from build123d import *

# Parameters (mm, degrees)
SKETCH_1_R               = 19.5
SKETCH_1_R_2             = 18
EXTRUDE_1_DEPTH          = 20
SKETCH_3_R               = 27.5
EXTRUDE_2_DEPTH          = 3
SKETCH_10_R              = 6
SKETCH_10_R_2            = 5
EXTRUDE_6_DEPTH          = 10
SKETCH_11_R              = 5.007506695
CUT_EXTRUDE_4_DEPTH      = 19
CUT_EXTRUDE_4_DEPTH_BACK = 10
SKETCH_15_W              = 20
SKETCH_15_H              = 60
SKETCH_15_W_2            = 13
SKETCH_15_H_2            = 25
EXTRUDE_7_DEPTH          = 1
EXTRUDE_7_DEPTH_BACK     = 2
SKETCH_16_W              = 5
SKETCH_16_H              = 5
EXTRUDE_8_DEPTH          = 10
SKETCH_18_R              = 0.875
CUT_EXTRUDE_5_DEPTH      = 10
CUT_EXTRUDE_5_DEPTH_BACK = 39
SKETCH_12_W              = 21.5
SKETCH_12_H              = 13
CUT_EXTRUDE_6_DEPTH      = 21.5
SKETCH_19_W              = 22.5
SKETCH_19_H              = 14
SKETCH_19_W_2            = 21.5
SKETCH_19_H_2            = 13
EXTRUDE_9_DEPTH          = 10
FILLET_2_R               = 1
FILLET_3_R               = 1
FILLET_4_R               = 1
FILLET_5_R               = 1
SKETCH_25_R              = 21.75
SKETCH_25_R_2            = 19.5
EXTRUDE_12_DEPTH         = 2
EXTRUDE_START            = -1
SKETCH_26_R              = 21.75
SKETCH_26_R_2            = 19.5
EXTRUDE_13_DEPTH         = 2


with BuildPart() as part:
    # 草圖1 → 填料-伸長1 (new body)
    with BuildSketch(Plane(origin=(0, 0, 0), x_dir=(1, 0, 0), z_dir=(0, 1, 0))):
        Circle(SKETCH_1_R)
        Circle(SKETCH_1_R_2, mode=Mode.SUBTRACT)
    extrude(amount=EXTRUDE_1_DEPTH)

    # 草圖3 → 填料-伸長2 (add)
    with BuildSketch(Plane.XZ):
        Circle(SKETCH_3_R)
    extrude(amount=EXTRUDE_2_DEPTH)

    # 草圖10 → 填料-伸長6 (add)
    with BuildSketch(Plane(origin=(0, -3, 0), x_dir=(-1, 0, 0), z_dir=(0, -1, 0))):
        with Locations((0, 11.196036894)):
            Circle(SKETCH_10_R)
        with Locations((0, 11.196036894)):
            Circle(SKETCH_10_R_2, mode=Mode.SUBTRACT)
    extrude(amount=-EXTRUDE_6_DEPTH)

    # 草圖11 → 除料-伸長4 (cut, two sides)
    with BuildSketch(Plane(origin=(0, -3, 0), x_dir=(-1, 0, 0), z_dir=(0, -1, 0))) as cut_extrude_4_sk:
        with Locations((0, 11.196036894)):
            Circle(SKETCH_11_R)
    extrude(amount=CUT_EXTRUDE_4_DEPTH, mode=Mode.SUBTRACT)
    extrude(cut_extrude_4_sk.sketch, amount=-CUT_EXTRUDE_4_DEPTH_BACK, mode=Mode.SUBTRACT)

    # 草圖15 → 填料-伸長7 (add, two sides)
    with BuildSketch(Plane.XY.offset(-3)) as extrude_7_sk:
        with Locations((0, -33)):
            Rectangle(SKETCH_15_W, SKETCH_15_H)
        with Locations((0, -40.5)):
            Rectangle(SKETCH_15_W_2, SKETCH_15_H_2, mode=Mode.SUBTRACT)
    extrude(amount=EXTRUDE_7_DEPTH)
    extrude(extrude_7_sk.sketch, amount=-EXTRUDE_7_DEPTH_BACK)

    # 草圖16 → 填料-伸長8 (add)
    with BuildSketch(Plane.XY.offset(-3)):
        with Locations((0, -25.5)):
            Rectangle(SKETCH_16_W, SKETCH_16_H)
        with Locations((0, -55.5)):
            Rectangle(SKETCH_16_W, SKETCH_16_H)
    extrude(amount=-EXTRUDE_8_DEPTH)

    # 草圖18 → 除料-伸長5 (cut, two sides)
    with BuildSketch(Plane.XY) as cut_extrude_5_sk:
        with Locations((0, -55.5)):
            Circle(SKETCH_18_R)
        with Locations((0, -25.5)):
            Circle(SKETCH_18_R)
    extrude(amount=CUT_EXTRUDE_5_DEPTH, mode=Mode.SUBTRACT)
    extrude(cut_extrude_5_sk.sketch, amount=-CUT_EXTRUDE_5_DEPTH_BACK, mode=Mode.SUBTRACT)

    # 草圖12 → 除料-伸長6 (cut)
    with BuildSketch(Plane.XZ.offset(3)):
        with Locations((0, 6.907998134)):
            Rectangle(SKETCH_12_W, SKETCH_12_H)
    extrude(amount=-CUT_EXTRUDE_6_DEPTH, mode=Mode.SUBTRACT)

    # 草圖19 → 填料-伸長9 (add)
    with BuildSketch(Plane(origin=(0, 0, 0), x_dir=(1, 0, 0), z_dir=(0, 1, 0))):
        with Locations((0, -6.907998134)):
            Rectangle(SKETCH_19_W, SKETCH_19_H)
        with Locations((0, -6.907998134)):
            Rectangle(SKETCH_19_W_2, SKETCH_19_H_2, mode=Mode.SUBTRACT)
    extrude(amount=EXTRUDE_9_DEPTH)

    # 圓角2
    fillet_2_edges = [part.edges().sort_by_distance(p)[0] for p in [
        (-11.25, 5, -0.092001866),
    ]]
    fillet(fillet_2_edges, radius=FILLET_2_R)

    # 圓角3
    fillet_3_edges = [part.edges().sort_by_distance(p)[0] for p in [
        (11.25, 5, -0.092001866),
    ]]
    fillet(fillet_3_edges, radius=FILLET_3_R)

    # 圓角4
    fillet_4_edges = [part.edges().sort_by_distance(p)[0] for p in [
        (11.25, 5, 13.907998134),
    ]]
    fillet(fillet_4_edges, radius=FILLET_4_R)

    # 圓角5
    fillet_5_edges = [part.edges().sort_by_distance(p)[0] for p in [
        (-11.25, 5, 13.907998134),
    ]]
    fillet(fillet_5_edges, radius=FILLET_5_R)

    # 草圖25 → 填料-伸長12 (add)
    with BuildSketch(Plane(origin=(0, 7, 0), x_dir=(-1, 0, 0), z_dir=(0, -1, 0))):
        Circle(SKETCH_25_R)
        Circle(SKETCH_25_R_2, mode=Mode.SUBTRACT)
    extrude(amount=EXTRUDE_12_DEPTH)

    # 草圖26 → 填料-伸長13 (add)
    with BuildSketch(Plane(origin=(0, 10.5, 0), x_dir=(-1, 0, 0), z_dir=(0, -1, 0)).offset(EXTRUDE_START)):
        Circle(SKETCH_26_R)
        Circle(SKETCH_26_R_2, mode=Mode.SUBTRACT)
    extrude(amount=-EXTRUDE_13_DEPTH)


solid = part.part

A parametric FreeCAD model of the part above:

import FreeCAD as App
import Part
import Sketcher
Q = App.Units.Quantity


def edges_at(feature, points):
    """Names of the edges that pass closest to the given points."""
    edges = feature.Shape.Edges
    near = lambda p: min(range(len(edges)), key=lambda i: edges[i].distToShape(Part.Vertex(*p))[0])
    return sorted({f"Edge{near(p) + 1}" for p in points})


def add_polygon(sketch, points):
    """Adds a closed chain of lines whose ends are joined by coincident constraints."""
    first, n = sketch.GeometryCount, len(points)
    for a, b in zip(points, points[1:] + points[:1]):
        sketch.addGeometry(Part.LineSegment(App.Vector(*a, 0), App.Vector(*b, 0)), False)
    for i in range(n):
        sketch.addConstraint(Sketcher.Constraint("Coincident", first + i, 2, first + (i + 1) % n, 1))

doc = App.newDocument("Part")
params = doc.addObject("Spreadsheet::Sheet", "Params")
for row, (alias, value) in enumerate([
    ("sketch1_diameter", "39 mm"),
    ("sketch1_diameter2", "36 mm"),
    ("pad1_length", "20 mm"),
    ("sketch2_diameter", "55 mm"),
    ("pad2_length", "3 mm"),
    ("sketch3_diameter", "12 mm"),
    ("sketch3_diameter2", "10 mm"),
    ("pad3_length", "10 mm"),
    ("sketch5_width", "20 mm"),
    ("sketch5_width2", "13 mm"),
    ("sketch5_height", "60 mm"),
    ("sketch5_height2", "25 mm"),
    ("pad4_length", "1 mm"),
    ("pad4_length2", "2 mm"),
    ("sketch6_width", "5 mm"),
    ("pad5_length", "10 mm"),
    ("sketch7_diameter", "1.75 mm"),
    ("sketch8_height", "13 mm"),
    ("sketch8_width", "21.5 mm"),
    ("pocket3_length", "21.5 mm"),
    ("sketch9_height", "14 mm"),
    ("sketch9_height2", "13 mm"),
    ("sketch9_width", "22.5 mm"),
    ("sketch9_width2", "21.5 mm"),
    ("pad6_length", "10 mm"),
    ("fillet_radius", "1 mm"),
    ("fillet2_radius", "1 mm"),
    ("fillet3_radius", "1 mm"),
    ("fillet4_radius", "1 mm"),
    ("sketch10_diameter", "39 mm"),
    ("sketch10_diameter2", "43.5 mm"),
    ("pad7_length", "2 mm"),
    ("sketch11_diameter", "39 mm"),
    ("sketch11_diameter2", "43.5 mm"),
    ("pad8_length", "2 mm"),
], start=1):
    params.set(f"A{row}", alias)
    params.set(f"B{row}", "=" + value)
    params.setAlias(f"B{row}", alias)

body = doc.addObject("PartDesign::Body", "Body")

sketch1 = body.newObject("Sketcher::SketchObject", "Sketch")
sketch1.AttachmentSupport = (doc.getObject("XZ_Plane"), [""])
sketch1.MapMode = "FlatFace"
sketch1.addGeometry(Part.Circle(App.Vector(0, 0, 0), App.Vector(0, 0, 1), 20), False)
sketch1.addGeometry(Part.Circle(App.Vector(0, 0, 0), App.Vector(0, 0, 1), 18), False)
sketch1.addConstraint(Sketcher.Constraint("Coincident", 0, 3, -1, 1))
sketch1.addConstraint(Sketcher.Constraint("Coincident", 1, 3, -1, 1))
sketch1.addConstraint(Sketcher.Constraint("Diameter", 0, Q("39 mm")))
sketch1.addConstraint(Sketcher.Constraint("Diameter", 1, Q("36 mm")))
sketch1.setExpression("Constraints[2]", "Params.sketch1_diameter")
sketch1.setExpression("Constraints[3]", "Params.sketch1_diameter2")
pad1 = body.newObject("PartDesign::Pad", "Pad")
pad1.Profile = sketch1
pad1.setExpression("Length", "Params.pad1_length")
pad1.Reversed = True

sketch2 = body.newObject("Sketcher::SketchObject", "Sketch001")
sketch2.AttachmentSupport = (doc.getObject("XZ_Plane"), [""])
sketch2.MapMode = "FlatFace"
sketch2.addGeometry(Part.Circle(App.Vector(0, 0, 0), App.Vector(0, 0, 1), 28), False)
sketch2.addConstraint(Sketcher.Constraint("Coincident", 0, 3, -1, 1))
sketch2.addConstraint(Sketcher.Constraint("Diameter", 0, Q("55 mm")))
sketch2.setExpression("Constraints[1]", "Params.sketch2_diameter")
pad2 = body.newObject("PartDesign::Pad", "Pad001")
pad2.Profile = sketch2
pad2.setExpression("Length", "Params.pad2_length")

sketch3 = body.newObject("Sketcher::SketchObject", "Sketch002")
sketch3.AttachmentSupport = (doc.getObject("XZ_Plane"), [""])
sketch3.MapMode = "FlatFace"
sketch3.AttachmentOffset = App.Placement(App.Vector(0, 0, 3), App.Rotation())
sketch3.addGeometry(Part.Circle(App.Vector(0, -11, 0), App.Vector(0, 0, 1), 6), False)
sketch3.addGeometry(Part.Circle(App.Vector(0, -11, 0), App.Vector(0, 0, 1), 5), False)
sketch3.addConstraint(Sketcher.Constraint("Coincident", 1, 3, 0, 3))
sketch3.addConstraint(Sketcher.Constraint("PointOnObject", 0, 3, -2))
sketch3.addConstraint(Sketcher.Constraint("Diameter", 0, Q("12 mm")))
sketch3.addConstraint(Sketcher.Constraint("Diameter", 1, Q("10 mm")))
sketch3.addConstraint(Sketcher.Constraint("DistanceY", 0, 3, -1, 1, Q("11.196037 mm")))
sketch3.setExpression("Constraints[2]", "Params.sketch3_diameter")
sketch3.setExpression("Constraints[3]", "Params.sketch3_diameter2")
pad3 = body.newObject("PartDesign::Pad", "Pad002")
pad3.Profile = sketch3
pad3.setExpression("Length", "Params.pad3_length")
pad3.Reversed = True

sketch4 = body.newObject("Sketcher::SketchObject", "Sketch003")
sketch4.AttachmentSupport = (doc.getObject("XZ_Plane"), [""])
sketch4.MapMode = "FlatFace"
sketch4.AttachmentOffset = App.Placement(App.Vector(0, 0, 3), App.Rotation())
sketch4.addGeometry(Part.Circle(App.Vector(0, -11, 0), App.Vector(0, 0, 1), 5), False)
sketch4.addConstraint(Sketcher.Constraint("PointOnObject", 0, 3, -2))
sketch4.addConstraint(Sketcher.Constraint("Diameter", 0, Q("10.015013 mm")))
sketch4.addConstraint(Sketcher.Constraint("DistanceY", 0, 3, -1, 1, Q("11.196037 mm")))
pocket1 = body.newObject("PartDesign::Pocket", "Pocket")
pocket1.Profile = sketch4
pocket1.Type = "ThroughAll"
pocket1.Midplane = True

sketch5 = body.newObject("Sketcher::SketchObject", "Sketch004")
sketch5.AttachmentSupport = (doc.getObject("XY_Plane"), [""])
sketch5.MapMode = "FlatFace"
sketch5.AttachmentOffset = App.Placement(App.Vector(0, 0, -3), App.Rotation())
add_polygon(sketch5, [(-10, -3), (-10, -63), (10, -63), (10, -3)])
add_polygon(sketch5, [(6, -53), (-6, -53), (-6, -28), (6, -28)])
sketch5.addConstraint(Sketcher.Constraint("Vertical", 0))
sketch5.addConstraint(Sketcher.Constraint("Horizontal", 1))
sketch5.addConstraint(Sketcher.Constraint("Vertical", 2))
sketch5.addConstraint(Sketcher.Constraint("Horizontal", 3))
sketch5.addConstraint(Sketcher.Constraint("Horizontal", 4))
sketch5.addConstraint(Sketcher.Constraint("Vertical", 5))
sketch5.addConstraint(Sketcher.Constraint("Horizontal", 6))
sketch5.addConstraint(Sketcher.Constraint("Vertical", 7))
sketch5.addConstraint(Sketcher.Constraint("DistanceX", 1, 1, 1, 2, Q("20 mm")))
sketch5.addConstraint(Sketcher.Constraint("DistanceX", 4, 2, 4, 1, Q("13 mm")))
sketch5.addConstraint(Sketcher.Constraint("DistanceY", 0, 2, 0, 1, Q("60 mm")))
sketch5.addConstraint(Sketcher.Constraint("DistanceY", 5, 1, 5, 2, Q("25 mm")))
sketch5.addConstraint(Sketcher.Constraint("DistanceX", 0, 2, -1, 1, Q("10 mm")))
sketch5.addConstraint(Sketcher.Constraint("DistanceY", 0, 2, -1, 1, Q("63 mm")))
sketch5.addConstraint(Sketcher.Constraint("DistanceY", 4, 2, -1, 1, Q("53 mm")))
sketch5.addConstraint(Sketcher.Constraint("DistanceX", 4, 2, -1, 1, Q("6.5 mm")))
sketch5.setExpression("Constraints[16]", "Params.sketch5_width")
sketch5.setExpression("Constraints[17]", "Params.sketch5_width2")
sketch5.setExpression("Constraints[18]", "Params.sketch5_height")
sketch5.setExpression("Constraints[19]", "Params.sketch5_height2")
pad4 = body.newObject("PartDesign::Pad", "Pad003")
pad4.Profile = sketch5
pad4.Type = "TwoLengths"
pad4.setExpression("Length", "Params.pad4_length")
pad4.setExpression("Length2", "Params.pad4_length2")

sketch6 = body.newObject("Sketcher::SketchObject", "Sketch005")
sketch6.AttachmentSupport = (doc.getObject("XY_Plane"), [""])
sketch6.MapMode = "FlatFace"
sketch6.AttachmentOffset = App.Placement(App.Vector(0, 0, -3), App.Rotation())
add_polygon(sketch6, [(-2, -23), (-2, -28), (2, -28), (2, -23)])
add_polygon(sketch6, [(-2, -53), (-2, -58), (2, -58), (2, -53)])
sketch6.addConstraint(Sketcher.Constraint("Vertical", 0))
sketch6.addConstraint(Sketcher.Constraint("Horizontal", 1))
sketch6.addConstraint(Sketcher.Constraint("Vertical", 2))
sketch6.addConstraint(Sketcher.Constraint("Horizontal", 3))
sketch6.addConstraint(Sketcher.Constraint("Vertical", 4))
sketch6.addConstraint(Sketcher.Constraint("Horizontal", 5))
sketch6.addConstraint(Sketcher.Constraint("Vertical", 6))
sketch6.addConstraint(Sketcher.Constraint("Horizontal", 7))
sketch6.addConstraint(Sketcher.Constraint("Vertical", 3, 2, 4, 2))
sketch6.addConstraint(Sketcher.Constraint("Vertical", 2, 2, 5, 2))
sketch6.addConstraint(Sketcher.Constraint("Equal", 7, 0))
sketch6.addConstraint(Sketcher.Constraint("Equal", 2, 4))
sketch6.addConstraint(Sketcher.Constraint("DistanceX", 1, 1, 1, 2, Q("5 mm")))
sketch6.addConstraint(Sketcher.Constraint("DistanceY", 0, 2, -1, 1, Q("28 mm")))
sketch6.addConstraint(Sketcher.Constraint("DistanceY", 4, 2, -1, 1, Q("58 mm")))
sketch6.addConstraint(Sketcher.Constraint("DistanceX", 0, 2, -1, 1, Q("2.5 mm")))
sketch6.setExpression("Constraints[20]", "Params.sketch6_width")
pad5 = body.newObject("PartDesign::Pad", "Pad004")
pad5.Profile = sketch6
pad5.setExpression("Length", "Params.pad5_length")
pad5.Reversed = True

sketch7 = body.newObject("Sketcher::SketchObject", "Sketch006")
sketch7.AttachmentSupport = (doc.getObject("XY_Plane"), [""])
sketch7.MapMode = "FlatFace"
sketch7.addGeometry(Part.Circle(App.Vector(0, -55.5, 0), App.Vector(0, 0, 1), 0.9), False)
sketch7.addGeometry(Part.Circle(App.Vector(0, -25.5, 0), App.Vector(0, 0, 1), 0.9), False)
sketch7.addConstraint(Sketcher.Constraint("Equal", 0, 1))
sketch7.addConstraint(Sketcher.Constraint("PointOnObject", 0, 3, -2))
sketch7.addConstraint(Sketcher.Constraint("PointOnObject", 1, 3, -2))
sketch7.addConstraint(Sketcher.Constraint("Diameter", 0, Q("1.75 mm")))
sketch7.addConstraint(Sketcher.Constraint("DistanceY", 0, 3, 1, 3, Q("30 mm")))
sketch7.addConstraint(Sketcher.Constraint("DistanceY", 0, 3, -1, 1, Q("55.5 mm")))
sketch7.setExpression("Constraints[3]", "Params.sketch7_diameter")
pocket2 = body.newObject("PartDesign::Pocket", "Pocket001")
pocket2.Profile = sketch7
pocket2.Type = "ThroughAll"
pocket2.Midplane = True

sketch8 = body.newObject("Sketcher::SketchObject", "Sketch007")
sketch8.AttachmentSupport = (doc.getObject("XZ_Plane"), [""])
sketch8.MapMode = "FlatFace"
sketch8.AttachmentOffset = App.Placement(App.Vector(0, 0, 3), App.Rotation())
add_polygon(sketch8, [(-11, 13), (-11, 0), (11, 0), (11, 13)])
sketch8.addConstraint(Sketcher.Constraint("Vertical", 0))
sketch8.addConstraint(Sketcher.Constraint("Horizontal", 1))
sketch8.addConstraint(Sketcher.Constraint("Vertical", 2))
sketch8.addConstraint(Sketcher.Constraint("Horizontal", 3))
sketch8.addConstraint(Sketcher.Constraint("DistanceY", 0, 2, 0, 1, Q("13 mm")))
sketch8.addConstraint(Sketcher.Constraint("DistanceX", 1, 1, 1, 2, Q("21.5 mm")))
sketch8.addConstraint(Sketcher.Constraint("DistanceX", 0, 2, -1, 1, Q("10.75 mm")))
sketch8.addConstraint(Sketcher.Constraint("DistanceY", -1, 1, 0, 2, Q("0.407998 mm")))
sketch8.setExpression("Constraints[8]", "Params.sketch8_height")
sketch8.setExpression("Constraints[9]", "Params.sketch8_width")
pocket3 = body.newObject("PartDesign::Pocket", "Pocket002")
pocket3.Profile = sketch8
pocket3.setExpression("Length", "Params.pocket3_length")

sketch9 = body.newObject("Sketcher::SketchObject", "Sketch008")
sketch9.AttachmentSupport = (doc.getObject("XZ_Plane"), [""])
sketch9.MapMode = "FlatFace"
add_polygon(sketch9, [(-11, 0), (-11, 14), (11, 14), (11, 0)])
add_polygon(sketch9, [(11, 13), (-11, 13), (-11, 0), (11, 0)])
sketch9.addConstraint(Sketcher.Constraint("Vertical", 0))
sketch9.addConstraint(Sketcher.Constraint("Horizontal", 1))
sketch9.addConstraint(Sketcher.Constraint("Vertical", 2))
sketch9.addConstraint(Sketcher.Constraint("Horizontal", 3))
sketch9.addConstraint(Sketcher.Constraint("Horizontal", 4))
sketch9.addConstraint(Sketcher.Constraint("Vertical", 5))
sketch9.addConstraint(Sketcher.Constraint("Horizontal", 6))
sketch9.addConstraint(Sketcher.Constraint("Vertical", 7))
sketch9.addConstraint(Sketcher.Constraint("DistanceY", 0, 1, 0, 2, Q("14 mm")))
sketch9.addConstraint(Sketcher.Constraint("DistanceY", 5, 2, 5, 1, Q("13 mm")))
sketch9.addConstraint(Sketcher.Constraint("DistanceX", 1, 1, 1, 2, Q("22.5 mm")))
sketch9.addConstraint(Sketcher.Constraint("DistanceX", 4, 2, 4, 1, Q("21.5 mm")))
sketch9.addConstraint(Sketcher.Constraint("DistanceX", 4, 2, 1, 2, Q("22 mm")))
sketch9.addConstraint(Sketcher.Constraint("DistanceY", 4, 2, 0, 2, Q("0.5 mm")))
sketch9.addConstraint(Sketcher.Constraint("DistanceX", 0, 2, -1, 1, Q("11.25 mm")))
sketch9.addConstraint(Sketcher.Constraint("DistanceY", -1, 1, 0, 2, Q("13.907998 mm")))
sketch9.setExpression("Constraints[16]", "Params.sketch9_height")
sketch9.setExpression("Constraints[17]", "Params.sketch9_height2")
sketch9.setExpression("Constraints[18]", "Params.sketch9_width")
sketch9.setExpression("Constraints[19]", "Params.sketch9_width2")
pad6 = body.newObject("PartDesign::Pad", "Pad005")
pad6.Profile = sketch9
pad6.setExpression("Length", "Params.pad6_length")
pad6.Reversed = True
doc.recompute()

fillet = body.newObject("PartDesign::Fillet", "Fillet")
fillet.Base = (pad6, edges_at(pad6, [(-11.25, 5, -0.092)]))
fillet.setExpression("Radius", "Params.fillet_radius")
doc.recompute()

fillet2 = body.newObject("PartDesign::Fillet", "Fillet001")
fillet2.Base = (fillet, edges_at(fillet, [(11.25, 5, -0.092)]))
fillet2.setExpression("Radius", "Params.fillet2_radius")
doc.recompute()

fillet3 = body.newObject("PartDesign::Fillet", "Fillet002")
fillet3.Base = (fillet2, edges_at(fillet2, [(11.25, 5, 13.908)]))
fillet3.setExpression("Radius", "Params.fillet3_radius")
doc.recompute()

fillet4 = body.newObject("PartDesign::Fillet", "Fillet003")
fillet4.Base = (fillet3, edges_at(fillet3, [(-11.25, 5, 13.908)]))
fillet4.setExpression("Radius", "Params.fillet4_radius")

sketch10 = body.newObject("Sketcher::SketchObject", "Sketch009")
sketch10.AttachmentSupport = (doc.getObject("XZ_Plane"), [""])
sketch10.MapMode = "FlatFace"
sketch10.AttachmentOffset = App.Placement(App.Vector(0, 0, -7), App.Rotation())
sketch10.addGeometry(Part.Circle(App.Vector(0, 0, 0), App.Vector(0, 0, 1), 22), False)
sketch10.addGeometry(Part.Circle(App.Vector(0, 0, 0), App.Vector(0, 0, 1), 20), False)
sketch10.addConstraint(Sketcher.Constraint("Coincident", 0, 3, -1, 1))
sketch10.addConstraint(Sketcher.Constraint("Coincident", 1, 3, -1, 1))
sketch10.addConstraint(Sketcher.Constraint("Diameter", 1, Q("39 mm")))
sketch10.addConstraint(Sketcher.Constraint("Diameter", 0, Q("43.5 mm")))
sketch10.setExpression("Constraints[2]", "Params.sketch10_diameter")
sketch10.setExpression("Constraints[3]", "Params.sketch10_diameter2")
pad7 = body.newObject("PartDesign::Pad", "Pad006")
pad7.Profile = sketch10
pad7.setExpression("Length", "Params.pad7_length")

sketch11 = body.newObject("Sketcher::SketchObject", "Sketch010")
sketch11.AttachmentSupport = (doc.getObject("XZ_Plane"), [""])
sketch11.MapMode = "FlatFace"
sketch11.AttachmentOffset = App.Placement(App.Vector(0, 0, -11.5), App.Rotation())
sketch11.addGeometry(Part.Circle(App.Vector(0, 0, 0), App.Vector(0, 0, 1), 22), False)
sketch11.addGeometry(Part.Circle(App.Vector(0, 0, 0), App.Vector(0, 0, 1), 20), False)
sketch11.addConstraint(Sketcher.Constraint("Coincident", 0, 3, -1, 1))
sketch11.addConstraint(Sketcher.Constraint("Coincident", 1, 3, -1, 1))
sketch11.addConstraint(Sketcher.Constraint("Diameter", 1, Q("39 mm")))
sketch11.addConstraint(Sketcher.Constraint("Diameter", 0, Q("43.5 mm")))
sketch11.setExpression("Constraints[2]", "Params.sketch11_diameter")
sketch11.setExpression("Constraints[3]", "Params.sketch11_diameter2")
pad8 = body.newObject("PartDesign::Pad", "Pad007")
pad8.Profile = sketch11
pad8.setExpression("Length", "Params.pad8_length")
pad8.Reversed = True

doc.recompute()
